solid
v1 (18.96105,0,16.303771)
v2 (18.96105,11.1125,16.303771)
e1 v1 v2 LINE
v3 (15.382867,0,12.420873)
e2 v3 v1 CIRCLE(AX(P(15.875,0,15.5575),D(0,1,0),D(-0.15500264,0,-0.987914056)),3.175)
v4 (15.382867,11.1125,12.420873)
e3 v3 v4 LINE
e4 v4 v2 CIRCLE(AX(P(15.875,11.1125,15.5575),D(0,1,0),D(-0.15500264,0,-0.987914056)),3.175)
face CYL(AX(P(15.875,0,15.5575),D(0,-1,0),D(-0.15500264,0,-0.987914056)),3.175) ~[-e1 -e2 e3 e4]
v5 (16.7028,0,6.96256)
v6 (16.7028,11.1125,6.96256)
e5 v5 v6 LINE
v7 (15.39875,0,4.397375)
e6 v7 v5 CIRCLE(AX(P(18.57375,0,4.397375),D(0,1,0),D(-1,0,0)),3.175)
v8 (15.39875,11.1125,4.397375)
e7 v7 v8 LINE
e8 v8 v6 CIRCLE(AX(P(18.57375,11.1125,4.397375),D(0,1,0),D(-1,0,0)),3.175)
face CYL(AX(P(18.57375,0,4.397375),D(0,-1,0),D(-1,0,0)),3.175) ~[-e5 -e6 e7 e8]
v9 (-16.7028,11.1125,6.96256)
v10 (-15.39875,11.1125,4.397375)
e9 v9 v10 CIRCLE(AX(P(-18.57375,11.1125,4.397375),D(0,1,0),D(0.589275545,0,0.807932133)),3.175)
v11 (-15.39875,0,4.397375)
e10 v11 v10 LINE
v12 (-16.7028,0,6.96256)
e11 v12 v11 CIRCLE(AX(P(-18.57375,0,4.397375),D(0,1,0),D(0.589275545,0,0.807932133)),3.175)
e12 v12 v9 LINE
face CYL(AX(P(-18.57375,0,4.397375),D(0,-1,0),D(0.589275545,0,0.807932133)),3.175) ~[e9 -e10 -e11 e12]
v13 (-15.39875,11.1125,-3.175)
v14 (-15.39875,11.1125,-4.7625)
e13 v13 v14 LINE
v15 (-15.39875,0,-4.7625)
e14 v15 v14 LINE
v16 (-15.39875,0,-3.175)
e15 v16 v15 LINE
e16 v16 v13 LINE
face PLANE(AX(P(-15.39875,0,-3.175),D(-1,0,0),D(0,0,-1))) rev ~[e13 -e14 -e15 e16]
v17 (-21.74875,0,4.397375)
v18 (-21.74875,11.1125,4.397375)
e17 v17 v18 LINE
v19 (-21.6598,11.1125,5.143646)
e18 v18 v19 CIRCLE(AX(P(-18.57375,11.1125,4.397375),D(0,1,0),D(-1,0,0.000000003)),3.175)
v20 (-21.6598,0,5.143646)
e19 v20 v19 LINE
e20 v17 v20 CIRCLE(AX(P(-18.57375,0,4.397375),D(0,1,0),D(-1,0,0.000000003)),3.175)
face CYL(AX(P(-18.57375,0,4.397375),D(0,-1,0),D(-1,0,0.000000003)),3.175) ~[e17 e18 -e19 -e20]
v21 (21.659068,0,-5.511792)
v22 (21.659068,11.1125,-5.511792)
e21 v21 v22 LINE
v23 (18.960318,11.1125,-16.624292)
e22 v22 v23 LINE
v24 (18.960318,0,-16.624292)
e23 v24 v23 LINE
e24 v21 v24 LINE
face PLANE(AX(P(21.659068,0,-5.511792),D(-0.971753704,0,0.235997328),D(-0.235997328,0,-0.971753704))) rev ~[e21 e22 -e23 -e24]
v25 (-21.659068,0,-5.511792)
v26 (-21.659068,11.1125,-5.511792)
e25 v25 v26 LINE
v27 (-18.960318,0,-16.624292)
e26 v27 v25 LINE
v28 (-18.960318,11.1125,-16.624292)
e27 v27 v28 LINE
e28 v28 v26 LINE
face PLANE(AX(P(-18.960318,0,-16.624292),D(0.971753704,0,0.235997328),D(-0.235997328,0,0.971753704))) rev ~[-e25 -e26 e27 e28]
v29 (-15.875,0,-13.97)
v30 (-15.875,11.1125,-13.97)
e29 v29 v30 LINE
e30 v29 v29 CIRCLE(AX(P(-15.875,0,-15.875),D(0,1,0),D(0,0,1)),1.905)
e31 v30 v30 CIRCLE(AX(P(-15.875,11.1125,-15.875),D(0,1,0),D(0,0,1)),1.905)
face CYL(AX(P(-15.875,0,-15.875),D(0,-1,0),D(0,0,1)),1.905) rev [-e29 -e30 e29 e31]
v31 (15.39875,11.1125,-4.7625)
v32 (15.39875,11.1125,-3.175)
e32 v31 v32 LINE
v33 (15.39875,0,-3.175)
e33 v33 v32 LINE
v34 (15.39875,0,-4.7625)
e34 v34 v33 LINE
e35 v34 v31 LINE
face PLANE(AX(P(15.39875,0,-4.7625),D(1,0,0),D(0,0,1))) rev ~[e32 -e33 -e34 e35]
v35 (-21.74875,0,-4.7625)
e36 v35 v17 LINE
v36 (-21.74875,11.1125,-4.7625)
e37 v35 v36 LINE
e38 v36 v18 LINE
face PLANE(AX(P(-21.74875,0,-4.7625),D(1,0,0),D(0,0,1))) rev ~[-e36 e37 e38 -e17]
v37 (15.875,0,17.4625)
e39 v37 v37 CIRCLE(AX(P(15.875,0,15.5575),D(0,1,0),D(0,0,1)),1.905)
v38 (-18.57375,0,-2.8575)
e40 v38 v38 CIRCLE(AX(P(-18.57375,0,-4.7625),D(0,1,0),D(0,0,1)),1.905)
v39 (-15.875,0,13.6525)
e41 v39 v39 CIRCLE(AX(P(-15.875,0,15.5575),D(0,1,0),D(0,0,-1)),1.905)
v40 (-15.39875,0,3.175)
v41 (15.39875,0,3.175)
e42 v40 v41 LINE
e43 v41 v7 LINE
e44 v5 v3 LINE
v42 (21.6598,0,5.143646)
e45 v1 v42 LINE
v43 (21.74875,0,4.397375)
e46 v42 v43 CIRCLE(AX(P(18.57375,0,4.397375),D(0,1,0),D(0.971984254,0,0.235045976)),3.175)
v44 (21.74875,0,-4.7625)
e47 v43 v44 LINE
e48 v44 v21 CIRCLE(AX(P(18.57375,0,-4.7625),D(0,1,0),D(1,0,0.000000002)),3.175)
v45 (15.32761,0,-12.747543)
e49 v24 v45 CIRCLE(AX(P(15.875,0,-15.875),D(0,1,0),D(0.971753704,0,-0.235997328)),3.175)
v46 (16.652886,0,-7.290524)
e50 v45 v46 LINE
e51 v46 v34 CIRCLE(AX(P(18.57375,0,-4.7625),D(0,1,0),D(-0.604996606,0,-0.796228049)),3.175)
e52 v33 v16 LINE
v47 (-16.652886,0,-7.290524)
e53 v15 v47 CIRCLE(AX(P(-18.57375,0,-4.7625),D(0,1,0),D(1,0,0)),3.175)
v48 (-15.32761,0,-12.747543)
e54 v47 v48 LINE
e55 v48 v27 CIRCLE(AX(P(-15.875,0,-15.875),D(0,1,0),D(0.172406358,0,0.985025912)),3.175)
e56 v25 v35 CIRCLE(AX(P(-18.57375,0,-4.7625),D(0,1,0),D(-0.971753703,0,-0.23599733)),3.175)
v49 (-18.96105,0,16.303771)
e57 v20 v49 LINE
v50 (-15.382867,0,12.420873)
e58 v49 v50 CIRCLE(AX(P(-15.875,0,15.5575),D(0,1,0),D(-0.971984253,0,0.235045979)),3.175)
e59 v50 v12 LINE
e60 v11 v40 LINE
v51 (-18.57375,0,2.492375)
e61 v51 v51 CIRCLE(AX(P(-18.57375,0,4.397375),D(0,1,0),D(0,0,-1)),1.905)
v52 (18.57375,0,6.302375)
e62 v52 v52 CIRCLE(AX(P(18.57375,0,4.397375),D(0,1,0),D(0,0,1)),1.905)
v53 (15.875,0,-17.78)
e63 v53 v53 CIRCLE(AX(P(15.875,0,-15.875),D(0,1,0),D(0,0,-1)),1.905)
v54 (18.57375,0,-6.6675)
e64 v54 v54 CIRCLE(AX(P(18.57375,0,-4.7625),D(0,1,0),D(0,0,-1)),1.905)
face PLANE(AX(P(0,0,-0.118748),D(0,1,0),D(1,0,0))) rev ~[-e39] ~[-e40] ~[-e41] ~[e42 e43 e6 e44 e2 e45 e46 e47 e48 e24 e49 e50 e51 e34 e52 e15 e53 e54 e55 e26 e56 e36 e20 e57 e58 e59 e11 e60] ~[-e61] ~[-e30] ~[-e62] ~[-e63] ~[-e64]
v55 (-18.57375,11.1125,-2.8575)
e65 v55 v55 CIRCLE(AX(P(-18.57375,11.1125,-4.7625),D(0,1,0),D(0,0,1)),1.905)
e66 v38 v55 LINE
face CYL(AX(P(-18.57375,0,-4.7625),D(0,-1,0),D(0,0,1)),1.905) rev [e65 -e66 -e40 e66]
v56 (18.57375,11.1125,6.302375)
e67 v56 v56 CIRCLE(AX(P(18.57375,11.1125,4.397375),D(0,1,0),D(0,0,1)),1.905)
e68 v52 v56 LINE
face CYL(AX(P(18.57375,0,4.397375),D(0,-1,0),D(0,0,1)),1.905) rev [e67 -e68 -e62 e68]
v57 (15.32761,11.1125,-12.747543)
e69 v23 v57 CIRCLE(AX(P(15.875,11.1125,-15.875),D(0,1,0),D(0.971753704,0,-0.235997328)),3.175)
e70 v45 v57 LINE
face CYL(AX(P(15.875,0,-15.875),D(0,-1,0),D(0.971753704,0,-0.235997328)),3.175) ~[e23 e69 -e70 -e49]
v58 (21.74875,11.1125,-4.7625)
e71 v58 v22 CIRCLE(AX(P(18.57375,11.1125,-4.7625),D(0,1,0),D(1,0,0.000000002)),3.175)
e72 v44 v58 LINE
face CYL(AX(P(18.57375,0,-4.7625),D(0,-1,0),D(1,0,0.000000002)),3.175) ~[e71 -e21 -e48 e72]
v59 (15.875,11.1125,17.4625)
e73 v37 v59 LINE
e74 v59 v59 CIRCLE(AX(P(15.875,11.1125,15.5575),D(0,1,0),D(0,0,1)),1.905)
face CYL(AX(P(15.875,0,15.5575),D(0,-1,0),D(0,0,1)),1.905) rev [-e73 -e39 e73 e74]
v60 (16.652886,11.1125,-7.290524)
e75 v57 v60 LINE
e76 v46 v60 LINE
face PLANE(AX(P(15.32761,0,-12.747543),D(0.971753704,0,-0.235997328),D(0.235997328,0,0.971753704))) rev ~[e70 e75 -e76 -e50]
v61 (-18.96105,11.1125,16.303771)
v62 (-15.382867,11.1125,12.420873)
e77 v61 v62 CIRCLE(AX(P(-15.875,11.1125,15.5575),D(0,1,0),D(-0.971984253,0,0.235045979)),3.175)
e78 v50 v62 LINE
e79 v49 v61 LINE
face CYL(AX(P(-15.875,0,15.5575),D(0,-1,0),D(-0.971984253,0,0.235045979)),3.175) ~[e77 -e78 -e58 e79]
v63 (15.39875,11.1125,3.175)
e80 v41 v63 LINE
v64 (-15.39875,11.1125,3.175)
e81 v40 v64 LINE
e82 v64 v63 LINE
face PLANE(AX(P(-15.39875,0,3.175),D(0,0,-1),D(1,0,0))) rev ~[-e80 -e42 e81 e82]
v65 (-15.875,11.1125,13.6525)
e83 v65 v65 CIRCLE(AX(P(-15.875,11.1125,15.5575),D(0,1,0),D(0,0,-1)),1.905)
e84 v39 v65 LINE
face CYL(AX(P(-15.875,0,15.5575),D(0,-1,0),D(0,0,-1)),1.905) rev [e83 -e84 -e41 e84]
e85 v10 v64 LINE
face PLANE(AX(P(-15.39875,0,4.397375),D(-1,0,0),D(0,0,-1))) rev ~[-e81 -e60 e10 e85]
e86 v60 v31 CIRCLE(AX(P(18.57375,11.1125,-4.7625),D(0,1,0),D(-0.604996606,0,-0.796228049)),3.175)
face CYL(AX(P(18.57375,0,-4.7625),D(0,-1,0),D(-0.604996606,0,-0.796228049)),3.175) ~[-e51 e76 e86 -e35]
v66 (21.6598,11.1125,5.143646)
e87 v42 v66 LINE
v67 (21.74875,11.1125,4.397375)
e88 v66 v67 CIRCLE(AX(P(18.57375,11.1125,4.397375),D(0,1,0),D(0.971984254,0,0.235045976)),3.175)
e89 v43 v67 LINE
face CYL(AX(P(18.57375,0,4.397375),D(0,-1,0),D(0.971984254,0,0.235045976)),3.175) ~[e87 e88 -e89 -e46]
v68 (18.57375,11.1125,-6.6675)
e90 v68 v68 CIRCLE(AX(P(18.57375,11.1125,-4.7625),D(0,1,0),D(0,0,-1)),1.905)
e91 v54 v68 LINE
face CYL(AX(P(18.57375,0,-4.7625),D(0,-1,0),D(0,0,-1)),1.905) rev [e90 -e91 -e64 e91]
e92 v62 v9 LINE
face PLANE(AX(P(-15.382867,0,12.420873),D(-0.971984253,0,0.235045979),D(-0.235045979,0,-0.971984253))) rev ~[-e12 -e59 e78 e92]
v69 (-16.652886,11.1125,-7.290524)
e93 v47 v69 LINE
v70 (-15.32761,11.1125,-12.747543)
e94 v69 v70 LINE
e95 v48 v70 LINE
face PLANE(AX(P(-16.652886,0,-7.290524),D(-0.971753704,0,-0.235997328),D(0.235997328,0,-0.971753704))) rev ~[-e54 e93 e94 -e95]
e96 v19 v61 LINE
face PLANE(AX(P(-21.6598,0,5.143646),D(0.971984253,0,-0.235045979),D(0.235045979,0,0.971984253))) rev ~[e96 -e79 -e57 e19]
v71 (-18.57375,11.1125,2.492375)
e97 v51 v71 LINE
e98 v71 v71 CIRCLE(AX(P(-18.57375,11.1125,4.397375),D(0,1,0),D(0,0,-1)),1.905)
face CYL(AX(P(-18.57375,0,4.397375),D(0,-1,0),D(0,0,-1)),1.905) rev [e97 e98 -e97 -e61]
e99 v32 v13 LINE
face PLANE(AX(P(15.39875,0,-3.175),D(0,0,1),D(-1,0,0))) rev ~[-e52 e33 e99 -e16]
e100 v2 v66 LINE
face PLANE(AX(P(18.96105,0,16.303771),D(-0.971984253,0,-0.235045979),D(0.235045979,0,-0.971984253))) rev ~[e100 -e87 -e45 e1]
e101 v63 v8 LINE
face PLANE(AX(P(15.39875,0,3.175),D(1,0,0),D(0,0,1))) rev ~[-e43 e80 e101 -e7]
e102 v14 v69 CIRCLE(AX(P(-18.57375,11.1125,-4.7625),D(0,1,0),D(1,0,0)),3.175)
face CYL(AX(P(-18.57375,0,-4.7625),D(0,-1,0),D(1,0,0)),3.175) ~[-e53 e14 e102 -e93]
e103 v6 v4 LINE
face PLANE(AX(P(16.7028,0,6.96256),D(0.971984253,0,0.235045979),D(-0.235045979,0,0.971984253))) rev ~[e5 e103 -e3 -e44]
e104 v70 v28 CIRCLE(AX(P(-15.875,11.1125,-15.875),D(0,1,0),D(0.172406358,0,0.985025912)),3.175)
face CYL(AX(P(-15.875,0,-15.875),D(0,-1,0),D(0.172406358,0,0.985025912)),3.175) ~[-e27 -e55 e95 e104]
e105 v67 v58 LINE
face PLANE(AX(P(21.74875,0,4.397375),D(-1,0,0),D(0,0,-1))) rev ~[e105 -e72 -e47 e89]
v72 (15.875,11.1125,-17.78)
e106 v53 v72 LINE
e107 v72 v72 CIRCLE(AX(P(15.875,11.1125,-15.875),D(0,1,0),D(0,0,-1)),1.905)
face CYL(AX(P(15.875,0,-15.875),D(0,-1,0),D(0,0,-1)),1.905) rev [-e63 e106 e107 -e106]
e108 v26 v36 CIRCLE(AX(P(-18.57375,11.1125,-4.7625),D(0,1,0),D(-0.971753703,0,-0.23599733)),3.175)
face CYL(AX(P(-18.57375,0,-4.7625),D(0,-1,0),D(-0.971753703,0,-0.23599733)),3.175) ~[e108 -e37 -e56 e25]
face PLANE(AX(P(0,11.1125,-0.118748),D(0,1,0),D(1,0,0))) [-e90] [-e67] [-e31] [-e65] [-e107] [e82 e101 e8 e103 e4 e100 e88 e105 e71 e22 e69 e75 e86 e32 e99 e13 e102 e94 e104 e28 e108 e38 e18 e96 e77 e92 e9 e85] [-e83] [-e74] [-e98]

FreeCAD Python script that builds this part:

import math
import FreeCAD as App
import Part
import Sketcher

V = App.Vector
Q = App.Units.Quantity

doc = App.newDocument("Part")
body = doc.addObject("PartDesign::Body", "Body")

# Sketch on XZ plane
sketch1 = body.newObject("Sketcher::SketchObject", "Sketch")
sketch1.AttachmentSupport = (doc.getObject("XZ_Plane"), [""])
sketch1.MapMode = "FlatFace"
sketch1.addGeometry(Part.LineSegment(V(-16.652886, -7.290524, 0), V(-15.32761, -12.747543, 0)), False)
sketch1.addGeometry(Part.ArcOfCircle(Part.Circle(V(-15.875, -15.875, 0), V(0, 0, 1), 3.175), math.radians(-166.349581), math.radians(80.072241)), False)
sketch1.addGeometry(Part.LineSegment(V(-18.960318, -16.624292, 0), V(-21.659068, -5.511792, 0)), False)
sketch1.addGeometry(Part.ArcOfCircle(Part.Circle(V(-18.57375, -4.7625, 0), V(0, 0, 1), 3.175), math.radians(180), math.radians(193.650419)), False)
sketch1.addGeometry(Part.LineSegment(V(-21.74875, -4.7625, 0), V(-21.74875, 4.397375, 0)), False)
sketch1.addGeometry(Part.ArcOfCircle(Part.Circle(V(-18.57375, 4.397375, 0), V(0, 0, 1), 3.175), math.radians(166.405667), math.radians(180)), False)
sketch1.addGeometry(Part.LineSegment(V(-21.6598, 5.143646, 0), V(-18.96105, 16.303771, 0)), False)
sketch1.addGeometry(Part.ArcOfCircle(Part.Circle(V(-15.875, 15.5575, 0), V(0, 0, 1), 3.175), math.radians(-81.083051), math.radians(166.405667)), False)
sketch1.addGeometry(Part.LineSegment(V(-15.382867, 12.420873, 0), V(-16.7028, 6.96256, 0)), False)
sketch1.addGeometry(Part.ArcOfCircle(Part.Circle(V(-18.57375, 4.397375, 0), V(0, 0, 1), 3.175), math.radians(0), math.radians(53.894384)), False)
sketch1.addGeometry(Part.LineSegment(V(-15.39875, 4.397375, 0), V(-15.39875, 3.175, 0)), False)
sketch1.addGeometry(Part.LineSegment(V(-15.39875, 3.175, 0), V(15.39875, 3.175, 0)), False)
sketch1.addGeometry(Part.LineSegment(V(15.39875, 3.175, 0), V(15.39875, 4.397375, 0)), False)
sketch1.addGeometry(Part.ArcOfCircle(Part.Circle(V(18.57375, 4.397375, 0), V(0, 0, 1), 3.175), math.radians(126.105616), math.radians(180)), False)
sketch1.addGeometry(Part.LineSegment(V(16.7028, 6.96256, 0), V(15.382867, 12.420873, 0)), False)
sketch1.addGeometry(Part.ArcOfCircle(Part.Circle(V(15.875, 15.5575, 0), V(0, 0, 1), 3.175), math.radians(13.594333), math.radians(261.083051)), False)
sketch1.addGeometry(Part.LineSegment(V(18.96105, 16.303771, 0), V(21.6598, 5.143646, 0)), False)
sketch1.addGeometry(Part.ArcOfCircle(Part.Circle(V(18.57375, 4.397375, 0), V(0, 0, 1), 3.175), math.radians(0), math.radians(13.594333)), False)
sketch1.addGeometry(Part.LineSegment(V(21.74875, 4.397375, 0), V(21.74875, -4.7625, 0)), False)
sketch1.addGeometry(Part.ArcOfCircle(Part.Circle(V(18.57375, -4.7625, 0), V(0, 0, 1), 3.175), math.radians(-13.650419), math.radians(0)), False)
sketch1.addGeometry(Part.LineSegment(V(21.659068, -5.511792, 0), V(18.960318, -16.624292, 0)), False)
sketch1.addGeometry(Part.ArcOfCircle(Part.Circle(V(15.875, -15.875, 0), V(0, 0, 1), 3.175), math.radians(99.927759), math.radians(346.349581)), False)
sketch1.addGeometry(Part.LineSegment(V(15.32761, -12.747543, 0), V(16.652886, -7.290524, 0)), False)
sketch1.addGeometry(Part.ArcOfCircle(Part.Circle(V(18.57375, -4.7625, 0), V(0, 0, 1), 3.175), math.radians(-180), math.radians(-127.228598)), False)
sketch1.addGeometry(Part.LineSegment(V(15.39875, -4.7625, 0), V(15.39875, -3.175, 0)), False)
sketch1.addGeometry(Part.LineSegment(V(15.39875, -3.175, 0), V(-15.39875, -3.175, 0)), False)
sketch1.addGeometry(Part.LineSegment(V(-15.39875, -3.175, 0), V(-15.39875, -4.7625, 0)), False)
sketch1.addGeometry(Part.ArcOfCircle(Part.Circle(V(-18.57375, -4.7625, 0), V(0, 0, 1), 3.175), math.radians(-52.771402), math.radians(0)), False)
sketch1.addGeometry(Part.Circle(V(-15.875, 15.5575, 0), V(0, 0, 1), 1.905), False)
sketch1.addGeometry(Part.Circle(V(-18.57375, 4.397375, 0), V(0, 0, 1), 1.905), False)
sketch1.addGeometry(Part.Circle(V(15.875, 15.5575, 0), V(0, 0, 1), 1.905), False)
sketch1.addGeometry(Part.Circle(V(18.57375, 4.397375, 0), V(0, 0, 1), 1.905), False)
sketch1.addGeometry(Part.Circle(V(-18.57375, -4.7625, 0), V(0, 0, 1), 1.905), False)
sketch1.addGeometry(Part.Circle(V(-15.875, -15.875, 0), V(0, 0, 1), 1.905), False)
sketch1.addGeometry(Part.Circle(V(18.57375, -4.7625, 0), V(0, 0, 1), 1.905), False)
sketch1.addGeometry(Part.Circle(V(15.875, -15.875, 0), V(0, 0, 1), 1.905), False)
sketch1.addConstraint(Sketcher.Constraint("Coincident", 0, 2, 1, 2))
sketch1.addConstraint(Sketcher.Constraint("Tangent", 1, 1, 2, 1))
sketch1.addConstraint(Sketcher.Constraint("Tangent", 2, 2, 3, 2))
sketch1.addConstraint(Sketcher.Constraint("Tangent", 3, 1, 4, 1))
sketch1.addConstraint(Sketcher.Constraint("Tangent", 4, 2, 5, 2))
sketch1.addConstraint(Sketcher.Constraint("Tangent", 5, 1, 6, 1))
sketch1.addConstraint(Sketcher.Constraint("Tangent", 6, 2, 7, 2))
sketch1.addConstraint(Sketcher.Constraint("Coincident", 7, 1, 8, 1))
sketch1.addConstraint(Sketcher.Constraint("Coincident", 8, 2, 9, 2))
sketch1.addConstraint(Sketcher.Constraint("Tangent", 9, 1, 10, 1))
sketch1.addConstraint(Sketcher.Constraint("Coincident", 10, 2, 11, 1))
sketch1.addConstraint(Sketcher.Constraint("Coincident", 11, 2, 12, 1))
sketch1.addConstraint(Sketcher.Constraint("Tangent", 12, 2, 13, 2))
sketch1.addConstraint(Sketcher.Constraint("Coincident", 13, 1, 14, 1))
sketch1.addConstraint(Sketcher.Constraint("Coincident", 14, 2, 15, 2))
sketch1.addConstraint(Sketcher.Constraint("Tangent", 15, 1, 16, 1))
sketch1.addConstraint(Sketcher.Constraint("Tangent", 16, 2, 17, 2))
sketch1.addConstraint(Sketcher.Constraint("Tangent", 17, 1, 18, 1))
sketch1.addConstraint(Sketcher.Constraint("Tangent", 18, 2, 19, 2))
sketch1.addConstraint(Sketcher.Constraint("Tangent", 19, 1, 20, 1))
sketch1.addConstraint(Sketcher.Constraint("Tangent", 20, 2, 21, 2))
sketch1.addConstraint(Sketcher.Constraint("Coincident", 21, 1, 22, 1))
sketch1.addConstraint(Sketcher.Constraint("Coincident", 22, 2, 23, 2))
sketch1.addConstraint(Sketcher.Constraint("Tangent", 23, 1, 24, 1))
sketch1.addConstraint(Sketcher.Constraint("Coincident", 24, 2, 25, 1))
sketch1.addConstraint(Sketcher.Constraint("Coincident", 25, 2, 26, 1))
sketch1.addConstraint(Sketcher.Constraint("Tangent", 26, 2, 27, 2))
sketch1.addConstraint(Sketcher.Constraint("Coincident", 27, 1, 0, 1))
sketch1.addConstraint(Sketcher.Constraint("Vertical", 4))
sketch1.addConstraint(Sketcher.Constraint("Vertical", 10))
sketch1.addConstraint(Sketcher.Constraint("Horizontal", 11))
sketch1.addConstraint(Sketcher.Constraint("Vertical", 12))
sketch1.addConstraint(Sketcher.Constraint("Vertical", 18))
sketch1.addConstraint(Sketcher.Constraint("Vertical", 24))
sketch1.addConstraint(Sketcher.Constraint("Horizontal", 25))
sketch1.addConstraint(Sketcher.Constraint("Vertical", 26))
sketch1.addConstraint(Sketcher.Constraint("Coincident", 9, 3, 5, 3))
sketch1.addConstraint(Sketcher.Constraint("Coincident", 17, 3, 13, 3))
sketch1.addConstraint(Sketcher.Constraint("Coincident", 23, 3, 19, 3))
sketch1.addConstraint(Sketcher.Constraint("Coincident", 27, 3, 3, 3))
sketch1.addConstraint(Sketcher.Constraint("Coincident", 28, 3, 7, 3))
sketch1.addConstraint(Sketcher.Constraint("Coincident", 29, 3, 5, 3))
sketch1.addConstraint(Sketcher.Constraint("Coincident", 30, 3, 15, 3))
sketch1.addConstraint(Sketcher.Constraint("Coincident", 31, 3, 13, 3))
sketch1.addConstraint(Sketcher.Constraint("Coincident", 32, 3, 3, 3))
sketch1.addConstraint(Sketcher.Constraint("Coincident", 33, 3, 1, 3))
sketch1.addConstraint(Sketcher.Constraint("Coincident", 34, 3, 19, 3))
sketch1.addConstraint(Sketcher.Constraint("Coincident", 35, 3, 21, 3))
sketch1.addConstraint(Sketcher.Constraint("Equal", 1, 3))
sketch1.addConstraint(Sketcher.Constraint("Equal", 3, 5))
sketch1.addConstraint(Sketcher.Constraint("Equal", 5, 7))
sketch1.addConstraint(Sketcher.Constraint("Equal", 7, 9))
sketch1.addConstraint(Sketcher.Constraint("Equal", 9, 13))
sketch1.addConstraint(Sketcher.Constraint("Equal", 13, 15))
sketch1.addConstraint(Sketcher.Constraint("Equal", 15, 17))
sketch1.addConstraint(Sketcher.Constraint("Equal", 17, 19))
sketch1.addConstraint(Sketcher.Constraint("Equal", 19, 21))
sketch1.addConstraint(Sketcher.Constraint("Equal", 21, 23))
sketch1.addConstraint(Sketcher.Constraint("Equal", 23, 27))
sketch1.addConstraint(Sketcher.Constraint("Equal", 28, 29))
sketch1.addConstraint(Sketcher.Constraint("Equal", 29, 30))
sketch1.addConstraint(Sketcher.Constraint("Equal", 30, 31))
sketch1.addConstraint(Sketcher.Constraint("Equal", 31, 32))
sketch1.addConstraint(Sketcher.Constraint("Equal", 32, 33))
sketch1.addConstraint(Sketcher.Constraint("Equal", 33, 34))
sketch1.addConstraint(Sketcher.Constraint("Equal", 34, 35))
sketch1.addConstraint(Sketcher.Constraint("Symmetric", 10, 2, 24, 2, -1, 1))
sketch1.addConstraint(Sketcher.Constraint("Symmetric", 7, 3, 15, 3, -2))
sketch1.addConstraint(Sketcher.Constraint("Symmetric", 1, 3, 21, 3, -2))
sketch1.addConstraint(Sketcher.Constraint("Symmetric", 8, 2, 13, 1, -2))
sketch1.addConstraint(Sketcher.Constraint("Symmetric", 22, 2, 27, 1, -2))
sketch1.addConstraint(Sketcher.Constraint("Parallel", 0, 2))
sketch1.addConstraint(Sketcher.Constraint("Parallel", 6, 8))
sketch1.addConstraint(Sketcher.Constraint("Parallel", 14, 16))
sketch1.addConstraint(Sketcher.Constraint("Parallel", 20, 22))
sketch1.addConstraint(Sketcher.Constraint("Vertical", 1, 3, 7, 3))
sketch1.addConstraint(Sketcher.Constraint("Equal", 0, 8))
sketch1.addConstraint(Sketcher.Constraint("Diameter", 28, Q("0.15 in")))
sketch1.addConstraint(Sketcher.Constraint("Radius", 1, Q("0.125 in")))
sketch1.addConstraint(Sketcher.Constraint("DistanceY", 3, 3, 7, 3, Q("0.8 in")))
sketch1.addConstraint(Sketcher.Constraint("DistanceY", 24, 1, 24, 2, Q("0.0625 in")))
sketch1.addConstraint(Sketcher.Constraint("DistanceX", 7, 3, 15, 3, Q("1.25 in")))
sketch1.addConstraint(Sketcher.Constraint("DistanceY", 25, 2, 10, 2, Q("0.25 in")))
sketch1.addConstraint(Sketcher.Constraint("DistanceX", 11, 1, 11, 2, Q("1.2125 in")))
sketch1.addConstraint(Sketcher.Constraint("DistanceY", 1, 3, -1, 1, Q("0.625 in")))
sketch1.addConstraint(Sketcher.Constraint("DistanceX", 5, 1, -1, 1, Q("21.6598 mm")))
sketch1.addConstraint(Sketcher.Constraint("DistanceX", 8, 2, -1, 1, Q("16.7028 mm")))
pad1 = body.newObject("PartDesign::Pad", "Pad")
pad1.Profile = sketch1
pad1.Length = Q("0.4375 in")
pad1.Reversed = True

doc.recompute()
